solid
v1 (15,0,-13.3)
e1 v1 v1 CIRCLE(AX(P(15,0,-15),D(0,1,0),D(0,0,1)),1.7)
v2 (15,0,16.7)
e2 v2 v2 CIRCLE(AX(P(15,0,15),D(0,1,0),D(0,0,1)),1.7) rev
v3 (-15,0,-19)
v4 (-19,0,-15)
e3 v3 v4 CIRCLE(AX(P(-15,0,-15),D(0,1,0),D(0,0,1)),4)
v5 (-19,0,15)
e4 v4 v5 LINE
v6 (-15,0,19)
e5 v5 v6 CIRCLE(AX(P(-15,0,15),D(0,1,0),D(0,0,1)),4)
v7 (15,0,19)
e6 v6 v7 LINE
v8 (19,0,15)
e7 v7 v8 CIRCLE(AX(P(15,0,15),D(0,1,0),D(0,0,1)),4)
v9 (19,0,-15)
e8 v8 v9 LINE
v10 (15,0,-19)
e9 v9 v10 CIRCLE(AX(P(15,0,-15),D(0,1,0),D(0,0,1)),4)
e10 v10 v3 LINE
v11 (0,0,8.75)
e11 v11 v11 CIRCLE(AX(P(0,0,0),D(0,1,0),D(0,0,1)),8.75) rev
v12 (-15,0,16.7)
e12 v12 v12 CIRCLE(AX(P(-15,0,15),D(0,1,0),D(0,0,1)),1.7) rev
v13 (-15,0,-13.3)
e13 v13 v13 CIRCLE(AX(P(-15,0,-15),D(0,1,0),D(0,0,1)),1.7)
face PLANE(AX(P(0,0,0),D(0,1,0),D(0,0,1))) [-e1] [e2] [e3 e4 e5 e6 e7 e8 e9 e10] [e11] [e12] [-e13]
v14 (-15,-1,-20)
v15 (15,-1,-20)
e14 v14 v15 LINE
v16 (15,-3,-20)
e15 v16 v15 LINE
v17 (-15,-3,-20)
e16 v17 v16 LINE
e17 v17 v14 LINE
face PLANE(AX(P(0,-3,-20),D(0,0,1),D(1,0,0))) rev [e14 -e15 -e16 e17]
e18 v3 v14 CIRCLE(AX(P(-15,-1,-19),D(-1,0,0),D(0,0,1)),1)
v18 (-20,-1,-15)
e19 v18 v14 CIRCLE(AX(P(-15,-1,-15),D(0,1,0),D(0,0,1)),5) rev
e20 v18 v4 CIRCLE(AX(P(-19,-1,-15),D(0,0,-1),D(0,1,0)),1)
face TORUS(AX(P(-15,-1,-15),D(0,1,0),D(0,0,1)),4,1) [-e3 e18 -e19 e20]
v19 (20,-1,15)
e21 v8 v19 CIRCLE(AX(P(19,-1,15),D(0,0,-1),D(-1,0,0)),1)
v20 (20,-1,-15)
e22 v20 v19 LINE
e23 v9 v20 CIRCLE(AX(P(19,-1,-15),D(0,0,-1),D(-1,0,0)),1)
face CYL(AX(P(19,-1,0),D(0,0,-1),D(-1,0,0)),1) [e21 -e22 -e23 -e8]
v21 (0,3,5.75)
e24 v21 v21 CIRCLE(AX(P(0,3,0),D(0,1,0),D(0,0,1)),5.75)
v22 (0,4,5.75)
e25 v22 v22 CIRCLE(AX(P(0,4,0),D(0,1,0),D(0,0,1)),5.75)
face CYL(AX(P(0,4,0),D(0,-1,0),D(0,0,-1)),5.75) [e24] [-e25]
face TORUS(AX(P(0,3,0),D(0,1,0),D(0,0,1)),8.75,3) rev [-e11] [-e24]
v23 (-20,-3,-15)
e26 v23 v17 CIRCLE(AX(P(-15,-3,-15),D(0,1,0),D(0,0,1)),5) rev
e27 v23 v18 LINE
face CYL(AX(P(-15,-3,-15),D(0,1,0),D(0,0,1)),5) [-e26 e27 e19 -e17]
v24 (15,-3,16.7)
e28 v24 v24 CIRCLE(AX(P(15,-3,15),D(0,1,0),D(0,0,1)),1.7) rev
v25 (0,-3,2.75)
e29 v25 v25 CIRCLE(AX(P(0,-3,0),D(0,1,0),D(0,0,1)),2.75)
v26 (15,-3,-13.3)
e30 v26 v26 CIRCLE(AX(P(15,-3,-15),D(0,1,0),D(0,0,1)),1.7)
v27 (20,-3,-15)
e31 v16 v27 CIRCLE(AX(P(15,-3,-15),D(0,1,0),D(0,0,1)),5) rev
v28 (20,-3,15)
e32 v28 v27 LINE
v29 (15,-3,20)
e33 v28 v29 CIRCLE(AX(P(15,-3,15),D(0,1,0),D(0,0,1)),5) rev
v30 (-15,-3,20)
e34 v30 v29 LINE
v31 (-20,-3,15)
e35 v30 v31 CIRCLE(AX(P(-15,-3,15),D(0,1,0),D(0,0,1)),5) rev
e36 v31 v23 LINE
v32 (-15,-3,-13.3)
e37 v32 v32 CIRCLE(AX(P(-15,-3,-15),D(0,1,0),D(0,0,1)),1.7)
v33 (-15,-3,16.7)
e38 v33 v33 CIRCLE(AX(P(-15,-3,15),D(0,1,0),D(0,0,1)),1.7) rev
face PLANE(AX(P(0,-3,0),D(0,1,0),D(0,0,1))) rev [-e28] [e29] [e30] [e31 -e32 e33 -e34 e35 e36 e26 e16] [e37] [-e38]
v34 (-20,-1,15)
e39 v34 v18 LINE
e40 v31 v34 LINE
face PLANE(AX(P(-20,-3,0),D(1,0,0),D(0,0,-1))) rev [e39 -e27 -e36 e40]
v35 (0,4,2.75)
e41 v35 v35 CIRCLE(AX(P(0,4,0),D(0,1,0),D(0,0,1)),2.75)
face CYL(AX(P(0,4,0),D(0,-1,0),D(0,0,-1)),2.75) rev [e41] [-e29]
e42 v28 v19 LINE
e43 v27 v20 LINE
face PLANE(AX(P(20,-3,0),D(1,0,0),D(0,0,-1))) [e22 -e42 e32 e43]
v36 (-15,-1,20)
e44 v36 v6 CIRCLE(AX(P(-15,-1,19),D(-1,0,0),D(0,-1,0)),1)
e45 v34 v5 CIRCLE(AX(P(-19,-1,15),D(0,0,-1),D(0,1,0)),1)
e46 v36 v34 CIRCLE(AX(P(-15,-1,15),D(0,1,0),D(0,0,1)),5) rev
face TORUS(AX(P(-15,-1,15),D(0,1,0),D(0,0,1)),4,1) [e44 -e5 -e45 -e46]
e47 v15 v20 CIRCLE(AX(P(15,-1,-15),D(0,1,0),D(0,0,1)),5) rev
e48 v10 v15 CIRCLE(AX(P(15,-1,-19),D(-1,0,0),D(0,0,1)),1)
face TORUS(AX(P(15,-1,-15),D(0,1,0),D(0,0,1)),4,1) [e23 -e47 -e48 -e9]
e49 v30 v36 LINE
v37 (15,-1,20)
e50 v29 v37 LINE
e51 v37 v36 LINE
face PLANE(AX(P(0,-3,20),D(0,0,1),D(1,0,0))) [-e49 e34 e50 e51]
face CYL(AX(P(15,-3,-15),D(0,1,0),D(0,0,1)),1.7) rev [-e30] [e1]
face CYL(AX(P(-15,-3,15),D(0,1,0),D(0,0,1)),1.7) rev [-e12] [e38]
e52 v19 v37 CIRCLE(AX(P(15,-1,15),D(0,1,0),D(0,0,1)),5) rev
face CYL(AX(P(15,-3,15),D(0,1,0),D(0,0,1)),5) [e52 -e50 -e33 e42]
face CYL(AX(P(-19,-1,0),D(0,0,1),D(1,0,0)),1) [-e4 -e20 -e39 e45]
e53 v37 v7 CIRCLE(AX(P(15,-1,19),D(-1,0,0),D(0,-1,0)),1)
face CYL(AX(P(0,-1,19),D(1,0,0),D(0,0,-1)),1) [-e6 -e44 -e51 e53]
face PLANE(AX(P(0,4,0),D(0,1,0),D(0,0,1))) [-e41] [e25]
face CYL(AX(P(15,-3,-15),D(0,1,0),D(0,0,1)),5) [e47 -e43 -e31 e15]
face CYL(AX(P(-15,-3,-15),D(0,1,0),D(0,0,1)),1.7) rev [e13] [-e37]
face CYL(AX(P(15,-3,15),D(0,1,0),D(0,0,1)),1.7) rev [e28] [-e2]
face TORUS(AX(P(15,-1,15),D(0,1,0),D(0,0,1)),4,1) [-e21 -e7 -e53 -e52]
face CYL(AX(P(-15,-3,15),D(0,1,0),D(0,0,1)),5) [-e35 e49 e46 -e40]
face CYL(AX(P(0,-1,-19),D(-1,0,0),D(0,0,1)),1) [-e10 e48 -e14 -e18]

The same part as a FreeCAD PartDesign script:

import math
import FreeCAD as App
import Part
import Sketcher
Q = App.Units.Quantity


def edges_at(feature, points):
    """Names of the edges that pass closest to the given points."""
    edges = feature.Shape.Edges
    near = lambda p: min(range(len(edges)), key=lambda i: edges[i].distToShape(Part.Vertex(*p))[0])
    return sorted({f"Edge{near(p) + 1}" for p in points})

doc = App.newDocument("Part")
body = doc.addObject("PartDesign::Body", "Body")

# Sketch on XZ plane
sketch1 = body.newObject("Sketcher::SketchObject", "Sketch")
sketch1.AttachmentSupport = (doc.getObject("XZ_Plane"), [""])
sketch1.MapMode = "FlatFace"
sketch1.addGeometry([
    Part.Circle(App.Vector(0, 0, 0), App.Vector(0, 0, 1), 5.75),
    Part.Circle(App.Vector(0, 0, 0), App.Vector(0, 0, 1), 2.75),
], False)
sketch1.addConstraint([
    Sketcher.Constraint("Coincident", 0, 3, -1, 1),
    Sketcher.Constraint("Coincident", 1, 3, -1, 1),
    Sketcher.Constraint("Diameter", 0, Q("11.5 mm")),
    Sketcher.Constraint("Diameter", 1, Q("5.5 mm")),
])
pad1 = body.newObject("PartDesign::Pad", "Pad")
pad1.Profile = sketch1
pad1.Length = 4
pad1.Reversed = True

# Sketch on XZ plane
sketch2 = body.newObject("Sketcher::SketchObject", "Sketch001")
sketch2.AttachmentSupport = (doc.getObject("XZ_Plane"), [""])
sketch2.MapMode = "FlatFace"
sketch2.addGeometry([
    Part.ArcOfCircle(Part.Circle(App.Vector(-15, -15, 0), App.Vector(0, 0, 1), 5), math.radians(180), math.radians(270)),  # 0
    Part.LineSegment(App.Vector(-20, -15, 0), App.Vector(-20, 15, 0)),  # 1
    Part.ArcOfCircle(Part.Circle(App.Vector(-15, 15, 0), App.Vector(0, 0, 1), 5), math.radians(90), math.radians(180)),  # 2
    Part.LineSegment(App.Vector(-15, 20, 0), App.Vector(15, 20, 0)),  # 3
    Part.ArcOfCircle(Part.Circle(App.Vector(15, 15, 0), App.Vector(0, 0, 1), 5), math.radians(0), math.radians(90)),  # 4
    Part.LineSegment(App.Vector(20, 15, 0), App.Vector(20, -15, 0)),  # 5
    Part.ArcOfCircle(Part.Circle(App.Vector(15, -15, 0), App.Vector(0, 0, 1), 5), math.radians(-90), math.radians(0)),  # 6
    Part.LineSegment(App.Vector(15, -20, 0), App.Vector(-15, -20, 0)),  # 7
    Part.Circle(App.Vector(15, 15, 0), App.Vector(0, 0, 1), 1.7),  # 8
    Part.Circle(App.Vector(-15, 15, 0), App.Vector(0, 0, 1), 1.7),  # 9
    Part.Circle(App.Vector(0, 0, 0), App.Vector(0, 0, 1), 2.75),  # 10
    Part.Circle(App.Vector(15, -15, 0), App.Vector(0, 0, 1), 1.7),  # 11
    Part.Circle(App.Vector(-15, -15, 0), App.Vector(0, 0, 1), 1.7),  # 12
], False)
sketch2.addConstraint([
    Sketcher.Constraint("Tangent", 0, 1, 1, 1),
    Sketcher.Constraint("Tangent", 1, 2, 2, 2),
    Sketcher.Constraint("Tangent", 2, 1, 3, 1),
    Sketcher.Constraint("Tangent", 3, 2, 4, 2),
    Sketcher.Constraint("Tangent", 4, 1, 5, 1),
    Sketcher.Constraint("Tangent", 5, 2, 6, 2),
    Sketcher.Constraint("Tangent", 6, 1, 7, 1),
    Sketcher.Constraint("Tangent", 7, 2, 0, 2),
    Sketcher.Constraint("Vertical", 1),
    Sketcher.Constraint("Horizontal", 3),
    Sketcher.Constraint("Vertical", 5),
    Sketcher.Constraint("Horizontal", 7),
    Sketcher.Constraint("Coincident", 10, 3, -1, 1),
    Sketcher.Constraint("Coincident", 8, 3, 4, 3),
    Sketcher.Constraint("Coincident", 9, 3, 2, 3),
    Sketcher.Constraint("Coincident", 11, 3, 6, 3),
    Sketcher.Constraint("Coincident", 12, 3, 0, 3),
    Sketcher.Constraint("Equal", 0, 2),
    Sketcher.Constraint("Equal", 2, 4),
    Sketcher.Constraint("Equal", 4, 6),
    Sketcher.Constraint("Equal", 8, 9),
    Sketcher.Constraint("Equal", 9, 11),
    Sketcher.Constraint("Equal", 11, 12),
    Sketcher.Constraint("Symmetric", 0, 3, 4, 3, -1, 1),
    Sketcher.Constraint("Equal", 7, 1),
    Sketcher.Constraint("Radius", 0, Q("5 mm")),
    Sketcher.Constraint("Diameter", 8, Q("3.4 mm")),
    Sketcher.Constraint("Diameter", 10, Q("5.5 mm")),
    Sketcher.Constraint("DistanceX", 3, 1, 3, 2, Q("30 mm")),
])
pad2 = body.newObject("PartDesign::Pad", "Pad001")
pad2.Profile = sketch2
pad2.Length = 3
doc.recompute()

fillet = body.newObject("PartDesign::Fillet", "Fillet")
fillet.Base = (pad2, edges_at(pad2, [(0, 0, -5.75)]))
fillet.Radius = 3
doc.recompute()

fillet2 = body.newObject("PartDesign::Fillet", "Fillet001")
fillet2.Base = (fillet, edges_at(fillet, [
    (18.536, 0, 18.536),
    (-18.536, 0, 18.536),
    (-20, 0, 0),
    (0, 0, 20),
    (20, 0, 0),
    (-18.536, 0, -18.536),
    (0, 0, -20),
    (18.536, 0, -18.536),
]))
fillet2.Radius = 1

doc.recompute()
